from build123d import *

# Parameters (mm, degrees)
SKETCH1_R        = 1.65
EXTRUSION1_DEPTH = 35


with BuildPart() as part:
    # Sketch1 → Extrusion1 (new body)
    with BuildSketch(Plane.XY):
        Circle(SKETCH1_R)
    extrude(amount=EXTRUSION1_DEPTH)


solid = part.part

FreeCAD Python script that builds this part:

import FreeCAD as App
import Part
import Sketcher

doc = App.newDocument("Part")
body = doc.addObject("PartDesign::Body", "Body")

# Sketch on XY plane
sketch1 = body.newObject("Sketcher::SketchObject", "Sketch")
sketch1.AttachmentSupport = (doc.getObject("XY_Plane"), [""])
sketch1.MapMode = "FlatFace"
sketch1.addGeometry(Part.Circle(App.Vector(0, 0, 0), App.Vector(0, 0, 1), 1.6), False)
sketch1.addConstraint([
    Sketcher.Constraint("Coincident", 0, 3, -1, 1),
    Sketcher.Constraint("Diameter", 0, 3.3),
])
pad1 = body.newObject("PartDesign::Pad", "Pad")
pad1.Profile = sketch1
pad1.Length = 35

doc.recompute()
